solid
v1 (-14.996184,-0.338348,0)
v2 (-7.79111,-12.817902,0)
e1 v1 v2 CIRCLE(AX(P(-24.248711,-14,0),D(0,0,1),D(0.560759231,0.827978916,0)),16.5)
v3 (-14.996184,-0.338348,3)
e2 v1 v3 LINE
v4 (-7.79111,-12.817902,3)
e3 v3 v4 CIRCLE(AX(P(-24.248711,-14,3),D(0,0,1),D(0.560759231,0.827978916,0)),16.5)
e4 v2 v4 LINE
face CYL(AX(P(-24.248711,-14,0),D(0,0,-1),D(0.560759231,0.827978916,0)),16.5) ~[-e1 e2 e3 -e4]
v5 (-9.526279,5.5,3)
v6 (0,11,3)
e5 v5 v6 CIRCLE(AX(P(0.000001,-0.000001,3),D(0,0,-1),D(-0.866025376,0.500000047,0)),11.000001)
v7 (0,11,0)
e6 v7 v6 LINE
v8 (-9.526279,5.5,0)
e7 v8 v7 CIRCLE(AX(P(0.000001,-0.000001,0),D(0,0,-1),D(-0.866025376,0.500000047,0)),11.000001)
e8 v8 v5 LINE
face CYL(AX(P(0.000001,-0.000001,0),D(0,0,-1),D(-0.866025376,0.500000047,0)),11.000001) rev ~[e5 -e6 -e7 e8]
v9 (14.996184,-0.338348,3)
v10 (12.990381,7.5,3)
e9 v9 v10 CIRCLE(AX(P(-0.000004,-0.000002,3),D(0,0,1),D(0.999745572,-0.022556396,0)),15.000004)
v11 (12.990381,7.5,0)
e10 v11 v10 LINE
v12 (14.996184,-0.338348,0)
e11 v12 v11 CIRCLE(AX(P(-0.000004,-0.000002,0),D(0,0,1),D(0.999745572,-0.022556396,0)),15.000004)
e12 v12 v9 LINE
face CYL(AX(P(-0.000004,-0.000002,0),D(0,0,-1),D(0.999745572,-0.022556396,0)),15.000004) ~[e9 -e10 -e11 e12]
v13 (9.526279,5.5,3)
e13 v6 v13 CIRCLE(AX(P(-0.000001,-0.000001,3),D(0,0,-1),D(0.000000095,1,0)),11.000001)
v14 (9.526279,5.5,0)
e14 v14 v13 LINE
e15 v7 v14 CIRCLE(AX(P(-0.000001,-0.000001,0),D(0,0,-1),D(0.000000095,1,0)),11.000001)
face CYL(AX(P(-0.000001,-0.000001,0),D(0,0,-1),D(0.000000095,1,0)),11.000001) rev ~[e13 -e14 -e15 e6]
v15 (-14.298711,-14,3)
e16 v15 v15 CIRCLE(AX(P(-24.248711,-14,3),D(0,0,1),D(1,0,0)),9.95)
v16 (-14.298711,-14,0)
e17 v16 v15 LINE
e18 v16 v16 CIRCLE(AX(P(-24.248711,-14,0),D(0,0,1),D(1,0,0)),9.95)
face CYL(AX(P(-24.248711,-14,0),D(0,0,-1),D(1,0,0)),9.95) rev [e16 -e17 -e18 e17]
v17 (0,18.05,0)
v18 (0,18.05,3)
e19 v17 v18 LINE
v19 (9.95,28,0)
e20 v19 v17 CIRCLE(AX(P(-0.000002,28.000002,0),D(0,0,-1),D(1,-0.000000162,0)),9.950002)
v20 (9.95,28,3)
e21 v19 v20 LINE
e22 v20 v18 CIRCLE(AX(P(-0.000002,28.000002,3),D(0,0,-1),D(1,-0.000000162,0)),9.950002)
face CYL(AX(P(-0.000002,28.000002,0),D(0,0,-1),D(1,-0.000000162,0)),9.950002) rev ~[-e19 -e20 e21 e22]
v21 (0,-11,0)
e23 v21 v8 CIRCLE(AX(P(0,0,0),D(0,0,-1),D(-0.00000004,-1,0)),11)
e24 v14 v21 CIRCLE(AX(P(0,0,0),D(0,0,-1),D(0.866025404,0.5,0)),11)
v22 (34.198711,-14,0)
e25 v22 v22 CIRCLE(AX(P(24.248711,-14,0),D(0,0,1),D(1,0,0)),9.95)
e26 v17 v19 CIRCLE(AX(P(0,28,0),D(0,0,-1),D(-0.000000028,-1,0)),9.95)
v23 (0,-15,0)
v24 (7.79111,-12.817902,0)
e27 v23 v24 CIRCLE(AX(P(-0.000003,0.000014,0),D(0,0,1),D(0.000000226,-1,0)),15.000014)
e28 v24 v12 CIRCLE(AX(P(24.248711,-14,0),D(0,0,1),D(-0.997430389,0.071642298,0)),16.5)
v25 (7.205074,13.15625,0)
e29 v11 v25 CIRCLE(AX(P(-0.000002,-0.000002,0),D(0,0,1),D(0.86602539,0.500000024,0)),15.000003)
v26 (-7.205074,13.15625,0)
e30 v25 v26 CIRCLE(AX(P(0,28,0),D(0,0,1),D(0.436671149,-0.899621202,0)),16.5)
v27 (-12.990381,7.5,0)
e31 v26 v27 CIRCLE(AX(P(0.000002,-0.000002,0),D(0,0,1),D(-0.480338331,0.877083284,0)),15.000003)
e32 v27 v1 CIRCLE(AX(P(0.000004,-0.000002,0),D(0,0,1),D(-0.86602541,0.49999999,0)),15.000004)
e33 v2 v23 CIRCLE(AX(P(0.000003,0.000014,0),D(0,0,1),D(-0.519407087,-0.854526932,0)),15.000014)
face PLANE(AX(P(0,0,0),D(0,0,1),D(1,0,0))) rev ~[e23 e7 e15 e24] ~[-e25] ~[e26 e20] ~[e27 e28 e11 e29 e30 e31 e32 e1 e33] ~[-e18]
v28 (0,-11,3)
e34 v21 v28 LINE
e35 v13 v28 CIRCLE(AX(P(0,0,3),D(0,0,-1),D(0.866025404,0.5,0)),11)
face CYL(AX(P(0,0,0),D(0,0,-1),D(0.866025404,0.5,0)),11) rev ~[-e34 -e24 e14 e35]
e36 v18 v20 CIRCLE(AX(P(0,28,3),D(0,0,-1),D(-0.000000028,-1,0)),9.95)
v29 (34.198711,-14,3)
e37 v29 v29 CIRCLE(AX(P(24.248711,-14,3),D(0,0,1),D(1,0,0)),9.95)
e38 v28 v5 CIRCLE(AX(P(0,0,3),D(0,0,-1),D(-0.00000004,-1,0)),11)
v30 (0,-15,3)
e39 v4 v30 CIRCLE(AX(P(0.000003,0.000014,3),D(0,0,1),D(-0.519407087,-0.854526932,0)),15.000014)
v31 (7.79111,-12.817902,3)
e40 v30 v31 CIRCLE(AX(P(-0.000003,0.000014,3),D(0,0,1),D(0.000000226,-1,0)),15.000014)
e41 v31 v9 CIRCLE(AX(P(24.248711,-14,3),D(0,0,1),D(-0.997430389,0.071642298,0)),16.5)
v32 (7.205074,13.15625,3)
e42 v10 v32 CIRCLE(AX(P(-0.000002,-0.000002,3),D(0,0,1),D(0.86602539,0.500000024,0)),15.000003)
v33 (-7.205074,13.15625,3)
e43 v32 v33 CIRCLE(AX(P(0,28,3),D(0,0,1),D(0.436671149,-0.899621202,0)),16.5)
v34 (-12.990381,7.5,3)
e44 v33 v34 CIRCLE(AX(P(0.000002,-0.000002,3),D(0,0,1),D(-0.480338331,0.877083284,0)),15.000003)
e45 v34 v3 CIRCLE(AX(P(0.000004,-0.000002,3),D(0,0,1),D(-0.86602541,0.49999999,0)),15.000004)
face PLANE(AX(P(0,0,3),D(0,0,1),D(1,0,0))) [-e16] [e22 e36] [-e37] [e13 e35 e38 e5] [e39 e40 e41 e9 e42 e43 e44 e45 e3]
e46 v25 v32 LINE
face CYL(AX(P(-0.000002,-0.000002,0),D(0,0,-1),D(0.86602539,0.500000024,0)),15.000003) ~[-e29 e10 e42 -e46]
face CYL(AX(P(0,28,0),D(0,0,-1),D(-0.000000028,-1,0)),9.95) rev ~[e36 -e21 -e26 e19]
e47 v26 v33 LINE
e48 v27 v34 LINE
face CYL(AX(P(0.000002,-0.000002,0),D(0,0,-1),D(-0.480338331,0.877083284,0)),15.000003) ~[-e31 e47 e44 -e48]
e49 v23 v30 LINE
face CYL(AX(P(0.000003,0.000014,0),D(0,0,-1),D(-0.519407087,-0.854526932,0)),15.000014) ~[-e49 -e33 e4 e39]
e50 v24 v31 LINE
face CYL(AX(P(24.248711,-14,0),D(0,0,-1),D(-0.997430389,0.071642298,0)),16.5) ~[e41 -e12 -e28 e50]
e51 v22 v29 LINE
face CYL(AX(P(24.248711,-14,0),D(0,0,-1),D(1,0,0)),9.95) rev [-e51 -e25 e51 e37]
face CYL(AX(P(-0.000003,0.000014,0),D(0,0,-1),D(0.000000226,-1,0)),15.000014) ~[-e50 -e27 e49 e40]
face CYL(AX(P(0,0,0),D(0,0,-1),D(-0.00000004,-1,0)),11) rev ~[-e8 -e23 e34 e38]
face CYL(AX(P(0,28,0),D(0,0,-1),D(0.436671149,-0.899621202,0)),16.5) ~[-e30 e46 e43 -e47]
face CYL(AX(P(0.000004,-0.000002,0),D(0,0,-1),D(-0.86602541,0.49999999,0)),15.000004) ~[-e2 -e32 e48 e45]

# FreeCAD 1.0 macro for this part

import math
import FreeCAD as App
import Part
import Sketcher
Q = App.Units.Quantity

doc = App.newDocument("Part")
body = doc.addObject("PartDesign::Body", "Body")

sketch1 = doc.addObject("Sketcher::SketchObject", "Sketch")
body.addObject(sketch1)
sketch1.AttachmentSupport = (doc.XY_Plane, [""])
sketch1.MapMode = "FlatFace"
sketch1.addGeometry([
    Part.ArcOfCircle(Part.Circle(App.Vector(0, 28, 0), App.Vector(0, 0, 1), 17), math.radians(-64), math.radians(244)),
    Part.ArcOfCircle(Part.Circle(App.Vector(0, 0, 0), App.Vector(0, 0, 1), 15), math.radians(119), math.radians(150)),
    Part.ArcOfCircle(Part.Circle(App.Vector(0, 0, 0), App.Vector(0, 0, 1), 15), math.radians(150), math.radians(181)),
    Part.ArcOfCircle(Part.Circle(App.Vector(-24, -14, 0), App.Vector(0, 0, 1), 16), math.radians(56), math.radians(364)),
    Part.ArcOfCircle(Part.Circle(App.Vector(0, 0, 0), App.Vector(0, 0, 1), 15), math.radians(-121), math.radians(-90)),
    Part.ArcOfCircle(Part.Circle(App.Vector(0, 0, 0), App.Vector(0, 0, 1), 15), math.radians(-90), math.radians(-59)),
    Part.ArcOfCircle(Part.Circle(App.Vector(24, -14, 0), App.Vector(0, 0, 1), 16), math.radians(176), math.radians(484)),
    Part.ArcOfCircle(Part.Circle(App.Vector(0, 0, 0), App.Vector(0, 0, 1), 15), math.radians(-1), math.radians(30)),
    Part.ArcOfCircle(Part.Circle(App.Vector(0, 0, 0), App.Vector(0, 0, 1), 15), math.radians(30), math.radians(61)),
    Part.Circle(App.Vector(-24, -14, 0), App.Vector(0, 0, 1), 10),
    Part.Circle(App.Vector(24, -14, 0), App.Vector(0, 0, 1), 10),
    Part.ArcOfCircle(Part.Circle(App.Vector(0, 0, 0), App.Vector(0, 0, 1), 11), math.radians(90), math.radians(150)),
    Part.ArcOfCircle(Part.Circle(App.Vector(0, 0, 0), App.Vector(0, 0, 1), 11), math.radians(30), math.radians(90)),
    Part.ArcOfCircle(Part.Circle(App.Vector(0, 0, 0), App.Vector(0, 0, 1), 11), math.radians(-90), math.radians(30)),
    Part.ArcOfCircle(Part.Circle(App.Vector(0, 0, 0), App.Vector(0, 0, 1), 11), math.radians(150), math.radians(270)),
    Part.ArcOfCircle(Part.Circle(App.Vector(0, 28, 0), App.Vector(0, 0, 1), 10), math.radians(0), math.radians(270)),
    Part.ArcOfCircle(Part.Circle(App.Vector(0, 28, 0), App.Vector(0, 0, 1), 10), math.radians(-90), math.radians(0)),
], False)
sketch1.addConstraint([
    Sketcher.Constraint("Coincident", 0, 2, 1, 1),
    Sketcher.Constraint("Tangent", 1, 2, 2, 1),
    Sketcher.Constraint("Coincident", 2, 2, 3, 1),
    Sketcher.Constraint("Coincident", 3, 2, 4, 1),
    Sketcher.Constraint("Tangent", 4, 2, 5, 1),
    Sketcher.Constraint("Coincident", 5, 2, 6, 1),
    Sketcher.Constraint("Coincident", 6, 2, 7, 1),
    Sketcher.Constraint("Tangent", 7, 2, 8, 1),
    Sketcher.Constraint("Coincident", 8, 2, 0, 1),
    Sketcher.Constraint("Tangent", 11, 1, 12, 2),
    Sketcher.Constraint("Tangent", 12, 1, 13, 2),
    Sketcher.Constraint("Tangent", 13, 1, 14, 2),
    Sketcher.Constraint("Tangent", 14, 1, 11, 2),
    Sketcher.Constraint("Tangent", 15, 1, 16, 2),
    Sketcher.Constraint("Coincident", 16, 1, 15, 2),
    Sketcher.Constraint("Coincident", 1, 3, -1, 1),
    Sketcher.Constraint("Coincident", 7, 3, -1, 1),
    Sketcher.Constraint("Coincident", 11, 3, -1, 1),
    Sketcher.Constraint("Coincident", 9, 3, 3, 3),
    Sketcher.Constraint("Coincident", 10, 3, 6, 3),
    Sketcher.Constraint("Coincident", 15, 3, 0, 3),
    Sketcher.Constraint("Equal", 1, 2),
    Sketcher.Constraint("Equal", 0, 3),
    Sketcher.Constraint("Equal", 4, 5),
    Sketcher.Constraint("Equal", 3, 6),
    Sketcher.Constraint("Equal", 2, 7),
    Sketcher.Constraint("Equal", 7, 8),
    Sketcher.Constraint("Equal", 9, 10),
    Sketcher.Constraint("Equal", 11, 12),
    Sketcher.Constraint("Equal", 10, 15),
    Sketcher.Constraint("Symmetric", 3, 3, 6, 3, -2),
    Sketcher.Constraint("PointOnObject", 0, 3, -2),
    Sketcher.Constraint("PointOnObject", 4, 2, -2),
    Sketcher.Constraint("PointOnObject", 11, 1, -2),
    Sketcher.Constraint("PointOnObject", 13, 1, -2),
    Sketcher.Constraint("PointOnObject", 16, 1, -2),
    Sketcher.Constraint("Horizontal", 3, 2, 5, 2),
    Sketcher.Constraint("Horizontal", 1, 2, 7, 2),
    Sketcher.Constraint("Horizontal", 12, 1, 14, 1),
    Sketcher.Constraint("Horizontal", 16, 3, 15, 1),
    Sketcher.Constraint("Radius", 11, Q("11.000001 mm")),
    Sketcher.Constraint("Diameter", 9, Q("19.9 mm")),
    Sketcher.Constraint("Radius", 0, Q("16.5 mm")),
    Sketcher.Constraint("DistanceY", -1, 1, 0, 3, Q("28 mm")),
    Sketcher.Constraint("DistanceY", 3, 3, -1, 1, Q("14 mm")),
    Sketcher.Constraint("DistanceY", 4, 2, -1, 1, Q("15 mm")),
    Sketcher.Constraint("DistanceY", 12, 1, 7, 2, Q("2 mm")),
    Sketcher.Constraint("DistanceY", -1, 1, 1, 2, Q("7.5 mm")),
    Sketcher.Constraint("Radius", 1, Q("15.000003 mm")),
    Sketcher.Constraint("Radius", 4, Q("15.000014 mm")),
    Sketcher.Constraint("DistanceY", 3, 2, -1, 1, Q("12.817902 mm")),
])
pad1 = doc.addObject("PartDesign::Pad", "Pad")
body.addObject(pad1)
pad1.Profile = sketch1
pad1.Length = 3

doc.recompute()
